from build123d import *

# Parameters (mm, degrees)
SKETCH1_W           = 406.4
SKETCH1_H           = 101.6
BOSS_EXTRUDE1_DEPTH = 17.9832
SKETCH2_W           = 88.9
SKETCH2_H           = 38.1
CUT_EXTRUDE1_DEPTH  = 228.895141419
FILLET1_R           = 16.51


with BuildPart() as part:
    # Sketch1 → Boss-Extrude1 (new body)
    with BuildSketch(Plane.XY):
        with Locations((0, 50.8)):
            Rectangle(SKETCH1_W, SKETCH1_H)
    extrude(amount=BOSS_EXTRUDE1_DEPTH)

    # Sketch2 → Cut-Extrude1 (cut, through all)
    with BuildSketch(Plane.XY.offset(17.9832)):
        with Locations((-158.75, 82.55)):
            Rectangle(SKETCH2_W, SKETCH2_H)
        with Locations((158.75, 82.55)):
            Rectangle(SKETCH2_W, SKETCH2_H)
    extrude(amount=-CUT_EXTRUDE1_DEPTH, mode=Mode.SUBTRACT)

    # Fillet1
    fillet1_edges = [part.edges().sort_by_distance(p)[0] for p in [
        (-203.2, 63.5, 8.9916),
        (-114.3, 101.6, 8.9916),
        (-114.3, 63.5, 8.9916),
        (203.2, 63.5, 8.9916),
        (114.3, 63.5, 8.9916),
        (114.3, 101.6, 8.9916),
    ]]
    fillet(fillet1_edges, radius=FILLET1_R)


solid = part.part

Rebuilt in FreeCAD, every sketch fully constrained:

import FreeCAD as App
import Part
import Sketcher
Q = App.Units.Quantity


def edges_at(feature, points):
    """Names of the edges that pass closest to the given points."""
    edges = feature.Shape.Edges
    near = lambda p: min(range(len(edges)), key=lambda i: edges[i].distToShape(Part.Vertex(*p))[0])
    return sorted({f"Edge{near(p) + 1}" for p in points})


def add_polygon(sketch, points):
    """Adds a closed chain of lines whose ends are joined by coincident constraints."""
    first, n = sketch.GeometryCount, len(points)
    for a, b in zip(points, points[1:] + points[:1]):
        sketch.addGeometry(Part.LineSegment(App.Vector(*a, 0), App.Vector(*b, 0)), False)
    for i in range(n):
        sketch.addConstraint(Sketcher.Constraint("Coincident", first + i, 2, first + (i + 1) % n, 1))

doc = App.newDocument("Part")
body = doc.addObject("PartDesign::Body", "Body")

sketch1 = body.newObject("Sketcher::SketchObject", "Sketch")
sketch1.AttachmentSupport = (doc.getObject("XY_Plane"), [""])
sketch1.MapMode = "FlatFace"
add_polygon(sketch1, [(-203, 102), (-203, 0), (203, 0), (203, 102)])
sketch1.addConstraint([
    Sketcher.Constraint("Vertical", 0),
    Sketcher.Constraint("Horizontal", 1),
    Sketcher.Constraint("Vertical", 2),
    Sketcher.Constraint("Horizontal", 3),
    Sketcher.Constraint("Symmetric", 0, 2, 1, 2, -1, 1),
    Sketcher.Constraint("DistanceX", 1, 1, 1, 2, Q("16 in")),
    Sketcher.Constraint("DistanceY", 0, 2, 0, 1, Q("4 in")),
])
pad1 = body.newObject("PartDesign::Pad", "Pad")
pad1.Profile = sketch1
pad1.Length = Q("0.708 in")

sketch2 = body.newObject("Sketcher::SketchObject", "Sketch001")
sketch2.AttachmentSupport = (doc.getObject("XY_Plane"), [""])
sketch2.MapMode = "FlatFace"
sketch2.AttachmentOffset = App.Placement(App.Vector(0, 0, 0.708 * 25.4), App.Rotation())
add_polygon(sketch2, [(-203, 102), (-203, 64), (-114, 64), (-114, 102)])
add_polygon(sketch2, [(114, 102), (114, 64), (203, 64), (203, 102)])
sketch2.addConstraint([
    Sketcher.Constraint("Vertical", 0),
    Sketcher.Constraint("Horizontal", 1),
    Sketcher.Constraint("Vertical", 2),
    Sketcher.Constraint("Horizontal", 3),
    Sketcher.Constraint("Vertical", 4),
    Sketcher.Constraint("Horizontal", 5),
    Sketcher.Constraint("Vertical", 6),
    Sketcher.Constraint("Horizontal", 7),
    Sketcher.Constraint("Symmetric", 1, 2, 4, 2, -2),
    Sketcher.Constraint("Symmetric", 3, 2, 6, 2, -2),
    Sketcher.Constraint("DistanceX", 1, 1, 1, 2, Q("3.5 in")),
    Sketcher.Constraint("DistanceY", 0, 2, 0, 1, Q("1.5 in")),
    Sketcher.Constraint("DistanceX", 0, 2, -1, 1, Q("8 in")),
    Sketcher.Constraint("DistanceY", -1, 1, 2, 2, Q("4 in")),
])
pocket1 = body.newObject("PartDesign::Pocket", "Pocket")
pocket1.Profile = sketch2
pocket1.Type = "ThroughAll"
doc.recompute()

fillet = body.newObject("PartDesign::Fillet", "Fillet")
fillet.Base = (pocket1, edges_at(pocket1, [
    (-203.2, 63.5, 8.992),
    (-114.3, 101.6, 8.992),
    (-114.3, 63.5, 8.992),
    (203.2, 63.5, 8.992),
    (114.3, 63.5, 8.992),
    (114.3, 101.6, 8.992),
]))
fillet.Radius = Q("0.65 in")

doc.recompute()
